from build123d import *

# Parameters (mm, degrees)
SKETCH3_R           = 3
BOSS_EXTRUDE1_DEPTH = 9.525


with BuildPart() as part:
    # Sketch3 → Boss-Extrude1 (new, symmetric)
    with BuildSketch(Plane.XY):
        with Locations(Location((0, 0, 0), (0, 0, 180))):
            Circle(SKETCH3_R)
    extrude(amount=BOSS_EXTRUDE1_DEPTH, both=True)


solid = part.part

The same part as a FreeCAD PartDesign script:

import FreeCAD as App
import Part
import Sketcher
from FreeCAD import Vector

doc = App.newDocument("Part")
body = doc.addObject("PartDesign::Body", "Body")

# Sketch on XY plane
sketch1 = body.newObject("Sketcher::SketchObject", "Sketch")
sketch1.AttachmentSupport = (doc.getObject("XY_Plane"), [""])
sketch1.MapMode = "FlatFace"
sketch1.addGeometry(Part.Circle(Vector(0, 0, 0), Vector(0, 0, 1), 3), False)
sketch1.addConstraint(Sketcher.Constraint("Coincident", 0, 3, -1, 1))
sketch1.addConstraint(Sketcher.Constraint("Diameter", 0, 6.0))
pad1 = body.newObject("PartDesign::Pad", "Pad")
pad1.Profile = sketch1
pad1.Length = 19.05
pad1.Midplane = True

doc.recompute()
